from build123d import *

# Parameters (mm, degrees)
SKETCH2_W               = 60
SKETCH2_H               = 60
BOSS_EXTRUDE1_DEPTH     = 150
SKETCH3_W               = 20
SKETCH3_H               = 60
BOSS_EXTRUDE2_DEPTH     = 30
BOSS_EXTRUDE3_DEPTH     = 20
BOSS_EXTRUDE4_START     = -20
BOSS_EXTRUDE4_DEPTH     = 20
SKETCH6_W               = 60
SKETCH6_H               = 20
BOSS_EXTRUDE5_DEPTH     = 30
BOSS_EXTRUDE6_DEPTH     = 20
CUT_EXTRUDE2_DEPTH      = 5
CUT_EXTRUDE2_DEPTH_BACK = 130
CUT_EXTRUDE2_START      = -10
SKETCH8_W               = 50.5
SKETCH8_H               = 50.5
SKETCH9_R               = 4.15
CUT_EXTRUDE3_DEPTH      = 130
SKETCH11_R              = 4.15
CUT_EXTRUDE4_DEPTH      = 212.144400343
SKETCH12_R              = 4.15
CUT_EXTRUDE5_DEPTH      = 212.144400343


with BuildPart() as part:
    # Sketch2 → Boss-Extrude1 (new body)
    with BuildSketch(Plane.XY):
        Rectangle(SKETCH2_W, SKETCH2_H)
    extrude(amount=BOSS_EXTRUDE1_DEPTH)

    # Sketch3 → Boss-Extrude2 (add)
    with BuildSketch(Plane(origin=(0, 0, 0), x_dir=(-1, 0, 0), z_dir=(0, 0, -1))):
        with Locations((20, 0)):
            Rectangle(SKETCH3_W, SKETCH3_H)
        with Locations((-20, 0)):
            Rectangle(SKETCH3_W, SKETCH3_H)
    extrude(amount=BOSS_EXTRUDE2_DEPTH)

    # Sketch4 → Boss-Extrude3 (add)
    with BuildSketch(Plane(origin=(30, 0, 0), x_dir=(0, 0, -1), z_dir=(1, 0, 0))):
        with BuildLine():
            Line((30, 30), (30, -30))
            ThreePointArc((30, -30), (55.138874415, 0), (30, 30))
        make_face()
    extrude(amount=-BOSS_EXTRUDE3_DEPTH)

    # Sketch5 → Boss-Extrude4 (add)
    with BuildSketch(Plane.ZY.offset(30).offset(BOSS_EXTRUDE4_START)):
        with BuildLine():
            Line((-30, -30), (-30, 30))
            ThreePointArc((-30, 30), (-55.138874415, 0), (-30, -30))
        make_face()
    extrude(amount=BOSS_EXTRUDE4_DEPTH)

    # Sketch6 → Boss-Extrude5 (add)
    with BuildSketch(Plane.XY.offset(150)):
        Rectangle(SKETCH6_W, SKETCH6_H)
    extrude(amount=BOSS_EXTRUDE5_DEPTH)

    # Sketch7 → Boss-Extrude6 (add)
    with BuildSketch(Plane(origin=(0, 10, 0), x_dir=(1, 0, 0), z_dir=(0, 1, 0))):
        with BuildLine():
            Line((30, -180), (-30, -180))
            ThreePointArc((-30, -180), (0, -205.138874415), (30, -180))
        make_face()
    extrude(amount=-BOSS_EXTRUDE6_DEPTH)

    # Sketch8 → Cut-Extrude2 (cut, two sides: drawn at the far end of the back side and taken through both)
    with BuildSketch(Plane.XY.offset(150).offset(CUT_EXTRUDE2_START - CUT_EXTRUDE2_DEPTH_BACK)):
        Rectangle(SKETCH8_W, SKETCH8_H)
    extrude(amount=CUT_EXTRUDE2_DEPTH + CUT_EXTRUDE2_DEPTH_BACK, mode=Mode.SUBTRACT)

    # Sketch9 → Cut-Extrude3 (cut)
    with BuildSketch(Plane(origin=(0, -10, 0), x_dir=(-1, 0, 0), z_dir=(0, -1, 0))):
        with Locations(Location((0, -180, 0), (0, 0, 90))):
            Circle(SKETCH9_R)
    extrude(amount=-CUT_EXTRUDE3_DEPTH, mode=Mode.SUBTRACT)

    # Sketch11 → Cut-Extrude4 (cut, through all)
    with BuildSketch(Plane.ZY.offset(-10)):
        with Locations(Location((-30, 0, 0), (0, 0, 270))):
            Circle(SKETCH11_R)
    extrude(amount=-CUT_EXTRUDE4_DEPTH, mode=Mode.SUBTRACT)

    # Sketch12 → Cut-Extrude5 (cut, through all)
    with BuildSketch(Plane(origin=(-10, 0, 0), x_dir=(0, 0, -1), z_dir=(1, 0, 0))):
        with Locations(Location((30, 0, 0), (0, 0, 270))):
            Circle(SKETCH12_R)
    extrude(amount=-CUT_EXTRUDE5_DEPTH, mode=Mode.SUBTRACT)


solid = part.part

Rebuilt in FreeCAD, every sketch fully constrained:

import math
import FreeCAD as App
import Part
import Sketcher


def add_polygon(sketch, points):
    """Adds a closed chain of lines whose ends are joined by coincident constraints."""
    first, n = sketch.GeometryCount, len(points)
    for a, b in zip(points, points[1:] + points[:1]):
        sketch.addGeometry(Part.LineSegment(App.Vector(*a, 0), App.Vector(*b, 0)), False)
    for i in range(n):
        sketch.addConstraint(Sketcher.Constraint("Coincident", first + i, 2, first + (i + 1) % n, 1))

doc = App.newDocument("Part")
body = doc.addObject("PartDesign::Body", "Body")

# Sketch on XY plane
sketch1 = body.newObject("Sketcher::SketchObject", "Sketch")
sketch1.AttachmentSupport = (doc.getObject("XY_Plane"), [""])
sketch1.MapMode = "FlatFace"
add_polygon(sketch1, [(-30, 30), (-30, -30), (30, -30), (30, 30)])  # lines 0-3
sketch1.addConstraint(Sketcher.Constraint("Vertical", 0))
sketch1.addConstraint(Sketcher.Constraint("Horizontal", 1))
sketch1.addConstraint(Sketcher.Constraint("Vertical", 2))
sketch1.addConstraint(Sketcher.Constraint("Horizontal", 3))
sketch1.addConstraint(Sketcher.Constraint("Symmetric", 0, 2, 2, 2, -1, 1))
sketch1.addConstraint(Sketcher.Constraint("Equal", 3, 0))
sketch1.addConstraint(Sketcher.Constraint("DistanceX", 1, 1, 1, 2, 60.0))
pad1 = body.newObject("PartDesign::Pad", "Pad")
pad1.Profile = sketch1
pad1.Length = 150

# Sketch on XY plane
sketch2 = body.newObject("Sketcher::SketchObject", "Sketch001")
sketch2.AttachmentSupport = (doc.getObject("XY_Plane"), [""])
sketch2.MapMode = "FlatFace"
add_polygon(sketch2, [(-10, 30), (-10, -30), (-30, -30), (-30, 30)])  # lines 0-3
add_polygon(sketch2, [(30, 30), (30, -30), (10, -30), (10, 30)])  # lines 4-7
sketch2.addConstraint(Sketcher.Constraint("Vertical", 0))
sketch2.addConstraint(Sketcher.Constraint("Horizontal", 1))
sketch2.addConstraint(Sketcher.Constraint("Vertical", 2))
sketch2.addConstraint(Sketcher.Constraint("Horizontal", 3))
sketch2.addConstraint(Sketcher.Constraint("Vertical", 4))
sketch2.addConstraint(Sketcher.Constraint("Horizontal", 5))
sketch2.addConstraint(Sketcher.Constraint("Vertical", 6))
sketch2.addConstraint(Sketcher.Constraint("Horizontal", 7))
sketch2.addConstraint(Sketcher.Constraint("Symmetric", 2, 2, 4, 2, -1, 1))
sketch2.addConstraint(Sketcher.Constraint("Symmetric", 0, 2, 6, 2, -1, 1))
sketch2.addConstraint(Sketcher.Constraint("Horizontal", 1, 2, 4, 2))
sketch2.addConstraint(Sketcher.Constraint("DistanceX", 1, 2, 1, 1, 20.0))
sketch2.addConstraint(Sketcher.Constraint("DistanceY", 0, 2, 0, 1, 60.0))
sketch2.addConstraint(Sketcher.Constraint("DistanceX", 0, 2, -1, 1, 10.0))
pad2 = body.newObject("PartDesign::Pad", "Pad001")
pad2.Profile = sketch2
pad2.Length = 30
pad2.Reversed = True

# Sketch on YZ plane
sketch3 = body.newObject("Sketcher::SketchObject", "Sketch002")
sketch3.AttachmentSupport = (doc.getObject("YZ_Plane"), [""])
sketch3.MapMode = "FlatFace"
sketch3.AttachmentOffset = App.Placement(App.Vector(0, 0, 30), App.Rotation())
sketch3.addGeometry(Part.LineSegment(App.Vector(30, -30, 0), App.Vector(-30, -30, 0)), False)
sketch3.addGeometry(Part.ArcOfCircle(Part.Circle(App.Vector(0, -24.668874, 0), App.Vector(0, 0, 1), 30.47), math.radians(-169.923489), math.radians(-10.076511)), False)
sketch3.addConstraint(Sketcher.Constraint("Coincident", 0, 1, 1, 2))
sketch3.addConstraint(Sketcher.Constraint("Coincident", 1, 1, 0, 2))
sketch3.addConstraint(Sketcher.Constraint("Horizontal", 0))
sketch3.addConstraint(Sketcher.Constraint("PointOnObject", 1, 3, -2))
sketch3.addConstraint(Sketcher.Constraint("DistanceX", 0, 2, 0, 1, 60.0))
sketch3.addConstraint(Sketcher.Constraint("Radius", 1, 30.47))
sketch3.addConstraint(Sketcher.Constraint("DistanceY", 0, 1, -1, 1, 30.0))
pad3 = body.newObject("PartDesign::Pad", "Pad002")
pad3.Profile = sketch3
pad3.Length = 20
pad3.Reversed = True

# Sketch on YZ plane
sketch4 = body.newObject("Sketcher::SketchObject", "Sketch003")
sketch4.AttachmentSupport = (doc.getObject("YZ_Plane"), [""])
sketch4.MapMode = "FlatFace"
sketch4.AttachmentOffset = App.Placement(App.Vector(0, 0, -10), App.Rotation())
sketch4.addGeometry(Part.LineSegment(App.Vector(-30, -30, 0), App.Vector(30, -30, 0)), False)
sketch4.addGeometry(Part.ArcOfCircle(Part.Circle(App.Vector(0, -24.668874, 0), App.Vector(0, 0, 1), 30.47), math.radians(-169.923489), math.radians(-10.076511)), False)
sketch4.addConstraint(Sketcher.Constraint("Coincident", 0, 1, 1, 1))
sketch4.addConstraint(Sketcher.Constraint("Coincident", 1, 2, 0, 2))
sketch4.addConstraint(Sketcher.Constraint("Horizontal", 0))
sketch4.addConstraint(Sketcher.Constraint("PointOnObject", 1, 3, -2))
sketch4.addConstraint(Sketcher.Constraint("DistanceX", 0, 1, 0, 2, 60.0))
sketch4.addConstraint(Sketcher.Constraint("Radius", 1, 30.47))
sketch4.addConstraint(Sketcher.Constraint("DistanceY", 0, 1, -1, 1, 30.0))
pad4 = body.newObject("PartDesign::Pad", "Pad003")
pad4.Profile = sketch4
pad4.Length = 20
pad4.Reversed = True

# Sketch on XY plane
sketch5 = body.newObject("Sketcher::SketchObject", "Sketch004")
sketch5.AttachmentSupport = (doc.getObject("XY_Plane"), [""])
sketch5.MapMode = "FlatFace"
sketch5.AttachmentOffset = App.Placement(App.Vector(0, 0, 150), App.Rotation())
add_polygon(sketch5, [(-30, 10), (-30, -10), (30, -10), (30, 10)])  # lines 0-3
sketch5.addConstraint(Sketcher.Constraint("Vertical", 0))
sketch5.addConstraint(Sketcher.Constraint("Horizontal", 1))
sketch5.addConstraint(Sketcher.Constraint("Vertical", 2))
sketch5.addConstraint(Sketcher.Constraint("Horizontal", 3))
sketch5.addConstraint(Sketcher.Constraint("Symmetric", 0, 2, 2, 2, -1, 1))
sketch5.addConstraint(Sketcher.Constraint("DistanceX", 1, 1, 1, 2, 60.0))
sketch5.addConstraint(Sketcher.Constraint("DistanceY", 0, 2, 0, 1, 20.0))
pad5 = body.newObject("PartDesign::Pad", "Pad004")
pad5.Profile = sketch5
pad5.Length = 30

# Sketch on XZ plane
sketch6 = body.newObject("Sketcher::SketchObject", "Sketch005")
sketch6.AttachmentSupport = (doc.getObject("XZ_Plane"), [""])
sketch6.MapMode = "FlatFace"
sketch6.AttachmentOffset = App.Placement(App.Vector(0, 0, -10), App.Rotation())
sketch6.addGeometry(Part.LineSegment(App.Vector(30, 180, 0), App.Vector(-30, 180, 0)), False)
sketch6.addGeometry(Part.ArcOfCircle(Part.Circle(App.Vector(0, 174.668874, 0), App.Vector(0, 0, 1), 30.47), math.radians(10.076511), math.radians(169.923489)), False)
sketch6.addConstraint(Sketcher.Constraint("Coincident", 0, 1, 1, 1))
sketch6.addConstraint(Sketcher.Constraint("Coincident", 1, 2, 0, 2))
sketch6.addConstraint(Sketcher.Constraint("Horizontal", 0))
sketch6.addConstraint(Sketcher.Constraint("PointOnObject", 1, 3, -2))
sketch6.addConstraint(Sketcher.Constraint("DistanceX", 0, 2, 0, 1, 60.0))
sketch6.addConstraint(Sketcher.Constraint("Radius", 1, 30.47))
sketch6.addConstraint(Sketcher.Constraint("DistanceY", -1, 1, 0, 1, 180.0))
pad6 = body.newObject("PartDesign::Pad", "Pad005")
pad6.Profile = sketch6
pad6.Length = 20

# Sketch on XY plane
sketch7 = body.newObject("Sketcher::SketchObject", "Sketch006")
sketch7.AttachmentSupport = (doc.getObject("XY_Plane"), [""])
sketch7.MapMode = "FlatFace"
sketch7.AttachmentOffset = App.Placement(App.Vector(0, 0, 140), App.Rotation())
add_polygon(sketch7, [(-25.25, 25.25), (-25.25, -25.25), (25.25, -25.25), (25.25, 25.25)])  # lines 0-3
sketch7.addConstraint(Sketcher.Constraint("Vertical", 0))
sketch7.addConstraint(Sketcher.Constraint("Horizontal", 1))
sketch7.addConstraint(Sketcher.Constraint("Vertical", 2))
sketch7.addConstraint(Sketcher.Constraint("Horizontal", 3))
sketch7.addConstraint(Sketcher.Constraint("Symmetric", 0, 2, 2, 2, -1, 1))
sketch7.addConstraint(Sketcher.Constraint("Equal", 3, 0))
sketch7.addConstraint(Sketcher.Constraint("DistanceX", 1, 1, 1, 2, 50.5))
pocket1 = body.newObject("PartDesign::Pocket", "Pocket")
pocket1.Profile = sketch7
pocket1.Type = "TwoLengths"
pocket1.Length = 5
pocket1.Length2 = 130
pocket1.Reversed = True

# Sketch on XZ plane
sketch8 = body.newObject("Sketcher::SketchObject", "Sketch007")
sketch8.AttachmentSupport = (doc.getObject("XZ_Plane"), [""])
sketch8.MapMode = "FlatFace"
sketch8.AttachmentOffset = App.Placement(App.Vector(0, 0, 10), App.Rotation())
sketch8.addGeometry(Part.Circle(App.Vector(0, 180, 0), App.Vector(0, 0, 1), 4.15), False)
sketch8.addConstraint(Sketcher.Constraint("PointOnObject", 0, 3, -2))
sketch8.addConstraint(Sketcher.Constraint("Diameter", 0, 8.3))
sketch8.addConstraint(Sketcher.Constraint("DistanceY", -1, 1, 0, 3, 180.0))
pocket2 = body.newObject("PartDesign::Pocket", "Pocket001")
pocket2.Profile = sketch8
pocket2.Length = 130

# Sketch on YZ plane
sketch9 = body.newObject("Sketcher::SketchObject", "Sketch008")
sketch9.AttachmentSupport = (doc.getObject("YZ_Plane"), [""])
sketch9.MapMode = "FlatFace"
sketch9.AttachmentOffset = App.Placement(App.Vector(0, 0, 10), App.Rotation())
sketch9.addGeometry(Part.Circle(App.Vector(0, -30, 0), App.Vector(0, 0, 1), 4.15), False)
sketch9.addConstraint(Sketcher.Constraint("PointOnObject", 0, 3, -2))
sketch9.addConstraint(Sketcher.Constraint("Diameter", 0, 8.3))
sketch9.addConstraint(Sketcher.Constraint("DistanceY", 0, 3, -1, 1, 30.0))
pocket3 = body.newObject("PartDesign::Pocket", "Pocket002")
pocket3.Profile = sketch9
pocket3.Type = "ThroughAll"
pocket3.Reversed = True

# Sketch on YZ plane
sketch10 = body.newObject("Sketcher::SketchObject", "Sketch009")
sketch10.AttachmentSupport = (doc.getObject("YZ_Plane"), [""])
sketch10.MapMode = "FlatFace"
sketch10.AttachmentOffset = App.Placement(App.Vector(0, 0, -10), App.Rotation())
sketch10.addGeometry(Part.Circle(App.Vector(0, -30, 0), App.Vector(0, 0, 1), 4.15), False)
sketch10.addConstraint(Sketcher.Constraint("PointOnObject", 0, 3, -2))
sketch10.addConstraint(Sketcher.Constraint("Diameter", 0, 8.3))
sketch10.addConstraint(Sketcher.Constraint("DistanceY", 0, 3, -1, 1, 30.0))
pocket4 = body.newObject("PartDesign::Pocket", "Pocket003")
pocket4.Profile = sketch10
pocket4.Type = "ThroughAll"

doc.recompute()
